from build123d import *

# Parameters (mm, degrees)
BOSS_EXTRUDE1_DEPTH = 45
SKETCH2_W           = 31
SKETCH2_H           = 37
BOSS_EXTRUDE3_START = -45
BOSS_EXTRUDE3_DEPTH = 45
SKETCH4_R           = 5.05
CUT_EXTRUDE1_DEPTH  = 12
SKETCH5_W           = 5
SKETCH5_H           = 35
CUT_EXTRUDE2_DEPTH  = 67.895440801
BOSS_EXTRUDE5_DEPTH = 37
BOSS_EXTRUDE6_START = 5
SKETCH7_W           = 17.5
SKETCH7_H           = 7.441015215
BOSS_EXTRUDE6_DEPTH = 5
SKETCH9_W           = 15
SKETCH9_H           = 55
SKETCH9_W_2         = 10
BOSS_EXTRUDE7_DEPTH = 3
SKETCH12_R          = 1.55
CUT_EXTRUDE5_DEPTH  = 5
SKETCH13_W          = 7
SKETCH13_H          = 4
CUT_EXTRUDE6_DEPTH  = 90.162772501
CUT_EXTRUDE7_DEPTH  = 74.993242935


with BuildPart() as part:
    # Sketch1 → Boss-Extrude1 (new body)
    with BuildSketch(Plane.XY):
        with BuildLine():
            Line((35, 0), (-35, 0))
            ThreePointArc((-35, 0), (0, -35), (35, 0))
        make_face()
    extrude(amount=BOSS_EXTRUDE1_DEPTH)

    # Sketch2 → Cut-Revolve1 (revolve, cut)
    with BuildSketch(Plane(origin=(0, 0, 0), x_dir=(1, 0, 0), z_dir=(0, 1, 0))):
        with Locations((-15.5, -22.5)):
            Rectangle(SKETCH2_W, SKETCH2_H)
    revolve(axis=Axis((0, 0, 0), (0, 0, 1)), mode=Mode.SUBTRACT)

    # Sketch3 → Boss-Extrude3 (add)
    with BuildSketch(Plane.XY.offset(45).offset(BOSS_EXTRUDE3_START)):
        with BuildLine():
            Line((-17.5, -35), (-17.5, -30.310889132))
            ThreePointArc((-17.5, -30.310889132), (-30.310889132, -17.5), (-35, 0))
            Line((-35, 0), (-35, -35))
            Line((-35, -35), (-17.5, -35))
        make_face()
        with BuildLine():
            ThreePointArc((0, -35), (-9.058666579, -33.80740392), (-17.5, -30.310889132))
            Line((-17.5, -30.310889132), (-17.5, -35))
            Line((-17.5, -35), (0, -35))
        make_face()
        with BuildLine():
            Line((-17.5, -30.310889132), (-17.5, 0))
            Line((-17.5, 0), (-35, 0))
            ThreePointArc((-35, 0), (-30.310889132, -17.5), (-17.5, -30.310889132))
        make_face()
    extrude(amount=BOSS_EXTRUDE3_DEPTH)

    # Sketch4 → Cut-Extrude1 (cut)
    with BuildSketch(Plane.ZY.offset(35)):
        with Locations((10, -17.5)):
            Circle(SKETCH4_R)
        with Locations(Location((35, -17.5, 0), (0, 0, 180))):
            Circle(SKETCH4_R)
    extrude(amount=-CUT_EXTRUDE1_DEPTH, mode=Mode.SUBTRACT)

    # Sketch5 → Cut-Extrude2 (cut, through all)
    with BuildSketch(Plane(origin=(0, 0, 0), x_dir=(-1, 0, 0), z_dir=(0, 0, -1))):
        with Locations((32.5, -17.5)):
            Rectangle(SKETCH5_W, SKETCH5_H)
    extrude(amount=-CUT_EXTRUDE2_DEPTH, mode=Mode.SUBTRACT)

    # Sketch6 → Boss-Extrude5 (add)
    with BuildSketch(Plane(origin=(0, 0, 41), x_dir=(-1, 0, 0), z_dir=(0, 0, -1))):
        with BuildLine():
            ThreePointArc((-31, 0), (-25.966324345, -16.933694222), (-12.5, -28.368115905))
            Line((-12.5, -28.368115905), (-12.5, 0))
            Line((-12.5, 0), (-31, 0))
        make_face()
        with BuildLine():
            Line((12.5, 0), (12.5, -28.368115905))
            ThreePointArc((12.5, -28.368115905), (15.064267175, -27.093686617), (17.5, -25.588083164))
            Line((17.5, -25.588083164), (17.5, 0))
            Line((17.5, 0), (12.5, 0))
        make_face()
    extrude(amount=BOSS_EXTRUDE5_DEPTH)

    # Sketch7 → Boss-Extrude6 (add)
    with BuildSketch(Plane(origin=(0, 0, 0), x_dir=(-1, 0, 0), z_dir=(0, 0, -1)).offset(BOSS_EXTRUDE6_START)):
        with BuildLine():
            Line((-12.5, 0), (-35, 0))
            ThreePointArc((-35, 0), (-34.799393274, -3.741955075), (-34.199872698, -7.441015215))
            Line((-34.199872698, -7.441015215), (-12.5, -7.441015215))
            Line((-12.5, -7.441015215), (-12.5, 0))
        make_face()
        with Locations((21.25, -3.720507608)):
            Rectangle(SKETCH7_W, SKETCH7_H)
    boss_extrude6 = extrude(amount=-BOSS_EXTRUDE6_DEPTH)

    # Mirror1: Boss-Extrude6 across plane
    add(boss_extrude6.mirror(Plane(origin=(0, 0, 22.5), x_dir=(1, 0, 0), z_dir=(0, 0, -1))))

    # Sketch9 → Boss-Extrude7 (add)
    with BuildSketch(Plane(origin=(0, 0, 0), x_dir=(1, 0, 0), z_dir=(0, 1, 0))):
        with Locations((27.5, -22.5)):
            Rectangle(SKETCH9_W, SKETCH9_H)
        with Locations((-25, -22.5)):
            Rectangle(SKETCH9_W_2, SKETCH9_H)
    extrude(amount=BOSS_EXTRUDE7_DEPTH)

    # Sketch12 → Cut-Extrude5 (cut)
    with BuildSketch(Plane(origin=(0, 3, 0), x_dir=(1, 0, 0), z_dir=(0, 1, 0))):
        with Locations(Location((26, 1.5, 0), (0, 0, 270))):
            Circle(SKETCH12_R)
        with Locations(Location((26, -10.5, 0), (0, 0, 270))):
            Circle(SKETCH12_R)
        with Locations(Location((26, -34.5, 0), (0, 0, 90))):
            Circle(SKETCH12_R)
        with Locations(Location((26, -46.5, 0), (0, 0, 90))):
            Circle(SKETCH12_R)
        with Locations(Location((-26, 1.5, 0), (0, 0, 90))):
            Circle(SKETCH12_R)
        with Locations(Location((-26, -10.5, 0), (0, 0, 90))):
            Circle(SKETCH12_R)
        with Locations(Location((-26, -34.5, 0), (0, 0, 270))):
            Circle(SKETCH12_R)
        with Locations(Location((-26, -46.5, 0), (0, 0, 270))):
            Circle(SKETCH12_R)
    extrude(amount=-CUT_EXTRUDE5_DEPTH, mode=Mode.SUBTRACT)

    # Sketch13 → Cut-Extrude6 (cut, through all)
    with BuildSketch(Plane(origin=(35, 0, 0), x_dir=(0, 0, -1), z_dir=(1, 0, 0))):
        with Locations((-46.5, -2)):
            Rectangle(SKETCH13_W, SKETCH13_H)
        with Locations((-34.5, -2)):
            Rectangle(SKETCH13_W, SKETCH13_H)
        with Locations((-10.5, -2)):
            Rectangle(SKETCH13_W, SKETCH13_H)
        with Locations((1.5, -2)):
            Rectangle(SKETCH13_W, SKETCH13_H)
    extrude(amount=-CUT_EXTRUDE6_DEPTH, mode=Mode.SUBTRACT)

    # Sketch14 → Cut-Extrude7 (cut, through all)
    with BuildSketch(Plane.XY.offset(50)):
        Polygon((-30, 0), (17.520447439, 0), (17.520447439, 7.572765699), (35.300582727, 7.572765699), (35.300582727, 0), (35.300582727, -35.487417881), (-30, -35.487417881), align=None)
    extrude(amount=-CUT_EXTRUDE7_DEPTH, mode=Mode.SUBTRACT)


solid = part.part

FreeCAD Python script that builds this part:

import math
import FreeCAD as App
import Part
import Sketcher


def add_polygon(sketch, points):
    """Adds a closed chain of lines whose ends are joined by coincident constraints."""
    first, n = sketch.GeometryCount, len(points)
    for a, b in zip(points, points[1:] + points[:1]):
        sketch.addGeometry(Part.LineSegment(App.Vector(*a, 0), App.Vector(*b, 0)), False)
    for i in range(n):
        sketch.addConstraint(Sketcher.Constraint("Coincident", first + i, 2, first + (i + 1) % n, 1))

doc = App.newDocument("Part")
body = doc.addObject("PartDesign::Body", "Body")

# Sketch on XY plane
sketch1 = body.newObject("Sketcher::SketchObject", "Sketch")
sketch1.AttachmentSupport = (doc.getObject("XY_Plane"), [""])
sketch1.MapMode = "FlatFace"
sketch1.addGeometry([
    Part.LineSegment(App.Vector(35, 0, 0), App.Vector(-35, 0, 0)),
    Part.ArcOfCircle(Part.Circle(App.Vector(0, 0, 0), App.Vector(0, 0, 1), 35), math.radians(180), math.radians(360)),
], False)
sketch1.addConstraint([
    Sketcher.Constraint("Coincident", 0, 1, 1, 2),
    Sketcher.Constraint("Coincident", 1, 1, 0, 2),
    Sketcher.Constraint("Horizontal", 0),
    Sketcher.Constraint("Coincident", 1, 3, -1, 1),
    Sketcher.Constraint("PointOnObject", 0, 1, -1),
    Sketcher.Constraint("Radius", 1, 35.0),
])
pad1 = body.newObject("PartDesign::Pad", "Pad")
pad1.Profile = sketch1
pad1.Length = 45

# Sketch on XZ plane
sketch2 = body.newObject("Sketcher::SketchObject", "Sketch001")
sketch2.AttachmentSupport = (doc.getObject("XZ_Plane"), [""])
sketch2.MapMode = "FlatFace"
add_polygon(sketch2, [(-31, 4), (-31, 41), (0, 41), (0, 4)])  # lines 0-3
sketch2.addConstraint([
    Sketcher.Constraint("Vertical", 0),
    Sketcher.Constraint("Horizontal", 1),
    Sketcher.Constraint("Vertical", 2),
    Sketcher.Constraint("Horizontal", 3),
    Sketcher.Constraint("PointOnObject", 1, 2, -2),
    Sketcher.Constraint("DistanceX", 1, 1, 1, 2, 31.0),
    Sketcher.Constraint("DistanceY", 0, 1, 0, 2, 37.0),
    Sketcher.Constraint("DistanceY", -1, 1, 0, 2, 41.0),
])
groove = body.newObject("PartDesign::Groove", "Groove")
groove.Profile = sketch2
groove.ReferenceAxis = (sketch2, ["V_Axis"])
groove.Angle = 360

# Sketch on XY plane
sketch3 = body.newObject("Sketcher::SketchObject", "Sketch002")
sketch3.AttachmentSupport = (doc.getObject("XY_Plane"), [""])
sketch3.MapMode = "FlatFace"
sketch3.addGeometry([
    Part.LineSegment(App.Vector(-35, 0, 0), App.Vector(-35, -35, 0)),  # 0
    Part.LineSegment(App.Vector(-35, -35, 0), App.Vector(0, -35, 0)),  # 1
    Part.ArcOfCircle(Part.Circle(App.Vector(0, 0, 0), App.Vector(0, 0, 1), 35), math.radians(-120), math.radians(-90)),  # 2
    Part.LineSegment(App.Vector(-18, -30, 0), App.Vector(-18, 0, 0)),  # 3
    Part.LineSegment(App.Vector(-18, 0, 0), App.Vector(-35, 0, 0)),  # 4
], False)
sketch3.addConstraint([
    Sketcher.Constraint("Coincident", 0, 2, 1, 1),
    Sketcher.Constraint("Tangent", 1, 2, 2, 2),
    Sketcher.Constraint("Coincident", 2, 1, 3, 1),
    Sketcher.Constraint("Coincident", 3, 2, 4, 1),
    Sketcher.Constraint("Coincident", 4, 2, 0, 1),
    Sketcher.Constraint("Vertical", 0),
    Sketcher.Constraint("Horizontal", 1),
    Sketcher.Constraint("Vertical", 3),
    Sketcher.Constraint("Horizontal", 4),
    Sketcher.Constraint("Coincident", 2, 3, -1, 1),
    Sketcher.Constraint("PointOnObject", 3, 2, -1),
    Sketcher.Constraint("Equal", 1, 0),
    Sketcher.Constraint("Radius", 2, 35.0),
    Sketcher.Constraint("DistanceX", 4, 2, 4, 1, 17.5),
])
pad2 = body.newObject("PartDesign::Pad", "Pad001")
pad2.Profile = sketch3
pad2.Length = 45

# Sketch on YZ plane
sketch4 = body.newObject("Sketcher::SketchObject", "Sketch003")
sketch4.AttachmentSupport = (doc.getObject("YZ_Plane"), [""])
sketch4.MapMode = "FlatFace"
sketch4.AttachmentOffset = App.Placement(App.Vector(0, 0, -35), App.Rotation())
sketch4.addGeometry([
    Part.Circle(App.Vector(-18, 10, 0), App.Vector(0, 0, 1), 5),
    Part.Circle(App.Vector(-18, 35, 0), App.Vector(0, 0, 1), 5),
], False)
sketch4.addConstraint([
    Sketcher.Constraint("Equal", 0, 1),
    Sketcher.Constraint("Vertical", 0, 3, 1, 3),
    Sketcher.Constraint("Diameter", 0, 10.1),
    Sketcher.Constraint("DistanceY", -1, 1, 0, 3, 10.0),
    Sketcher.Constraint("DistanceY", -1, 1, 1, 3, 35.0),
    Sketcher.Constraint("DistanceX", 0, 3, -1, 1, 17.5),
])
pocket1 = body.newObject("PartDesign::Pocket", "Pocket")
pocket1.Profile = sketch4
pocket1.Length = 12
pocket1.Reversed = True

# Sketch on XY plane
sketch5 = body.newObject("Sketcher::SketchObject", "Sketch004")
sketch5.AttachmentSupport = (doc.getObject("XY_Plane"), [""])
sketch5.MapMode = "FlatFace"
add_polygon(sketch5, [(-30, 0), (-30, -35), (-35, -35), (-35, 0)])  # lines 0-3
sketch5.addConstraint([
    Sketcher.Constraint("Vertical", 0),
    Sketcher.Constraint("Horizontal", 1),
    Sketcher.Constraint("Vertical", 2),
    Sketcher.Constraint("Horizontal", 3),
    Sketcher.Constraint("PointOnObject", 2, 2, -1),
    Sketcher.Constraint("DistanceX", 1, 2, 1, 1, 5.0),
    Sketcher.Constraint("DistanceY", 0, 2, 0, 1, 35.0),
    Sketcher.Constraint("DistanceX", 0, 2, -1, 1, 30.0),
])
pocket2 = body.newObject("PartDesign::Pocket", "Pocket001")
pocket2.Profile = sketch5
pocket2.Type = "ThroughAll"
pocket2.Reversed = True

# Sketch on XY plane
sketch6 = body.newObject("Sketcher::SketchObject", "Sketch005")
sketch6.AttachmentSupport = (doc.getObject("XY_Plane"), [""])
sketch6.MapMode = "FlatFace"
sketch6.AttachmentOffset = App.Placement(App.Vector(0, 0, 41), App.Rotation())
sketch6.addGeometry([
    Part.ArcOfCircle(Part.Circle(App.Vector(0, 0, 0), App.Vector(0, 0, 1), 31), math.radians(-66), math.radians(0)),  # 0
    Part.LineSegment(App.Vector(12, -28, 0), App.Vector(12, 0, 0)),  # 1
    Part.LineSegment(App.Vector(12, 0, 0), App.Vector(31, 0, 0)),  # 2
    Part.LineSegment(App.Vector(-12, 0, 0), App.Vector(-12, -28, 0)),  # 3
    Part.ArcOfCircle(Part.Circle(App.Vector(0, 0, 0), App.Vector(0, 0, 1), 31), math.radians(-124.37), math.radians(-113.78)),  # 4
    Part.LineSegment(App.Vector(-18, -26, 0), App.Vector(-18, 0, 0)),  # 5
    Part.LineSegment(App.Vector(-18, 0, 0), App.Vector(-12, 0, 0)),  # 6
], False)
sketch6.addConstraint([
    Sketcher.Constraint("Coincident", 0, 1, 1, 1),
    Sketcher.Constraint("Coincident", 1, 2, 2, 1),
    Sketcher.Constraint("Coincident", 2, 2, 0, 2),
    Sketcher.Constraint("Coincident", 3, 2, 4, 2),
    Sketcher.Constraint("Coincident", 4, 1, 5, 1),
    Sketcher.Constraint("Coincident", 5, 2, 6, 1),
    Sketcher.Constraint("Coincident", 6, 2, 3, 1),
    Sketcher.Constraint("Vertical", 1),
    Sketcher.Constraint("Horizontal", 2),
    Sketcher.Constraint("Vertical", 3),
    Sketcher.Constraint("Vertical", 5),
    Sketcher.Constraint("Horizontal", 6),
    Sketcher.Constraint("Coincident", 0, 3, -1, 1),
    Sketcher.Constraint("Coincident", 4, 3, -1, 1),
    Sketcher.Constraint("Equal", 0, 4),
    Sketcher.Constraint("Symmetric", 1, 2, 6, 2, -1, 1),
    Sketcher.Constraint("PointOnObject", 1, 2, -1),
    Sketcher.Constraint("Radius", 0, 31.0),
    Sketcher.Constraint("DistanceX", 6, 1, 6, 2, 5.0),
    Sketcher.Constraint("DistanceX", 2, 1, 2, 2, 18.5),
])
pad3 = body.newObject("PartDesign::Pad", "Pad002")
pad3.Profile = sketch6
pad3.Length = 37
pad3.Reversed = True

# Sketch on XY plane
sketch7 = body.newObject("Sketcher::SketchObject", "Sketch006")
sketch7.AttachmentSupport = (doc.getObject("XY_Plane"), [""])
sketch7.MapMode = "FlatFace"
sketch7.AttachmentOffset = App.Placement(App.Vector(0, 0, -5), App.Rotation())
sketch7.addGeometry(Part.LineSegment(App.Vector(12, 0, 0), App.Vector(35, 0, 0)), False)  # 0
sketch7.addGeometry(Part.ArcOfCircle(Part.Circle(App.Vector(0, 0, 0), App.Vector(0, 0, 1), 35), math.radians(-12.27), math.radians(0)), False)  # 1
sketch7.addGeometry(Part.LineSegment(App.Vector(34, -7, 0), App.Vector(12, -7, 0)), False)  # 2
sketch7.addGeometry(Part.LineSegment(App.Vector(12, -7, 0), App.Vector(12, 0, 0)), False)  # 3
add_polygon(sketch7, [(-12, 0), (-12, -7), (-30, -7), (-30, 0)])  # lines 4-7
sketch7.addConstraint([
    Sketcher.Constraint("Coincident", 0, 2, 1, 2),
    Sketcher.Constraint("Coincident", 1, 1, 2, 1),
    Sketcher.Constraint("Coincident", 2, 2, 3, 1),
    Sketcher.Constraint("Coincident", 3, 2, 0, 1),
    Sketcher.Constraint("Horizontal", 0),
    Sketcher.Constraint("Horizontal", 2),
    Sketcher.Constraint("Vertical", 3),
    Sketcher.Constraint("Vertical", 4),
    Sketcher.Constraint("Horizontal", 5),
    Sketcher.Constraint("Vertical", 6),
    Sketcher.Constraint("Horizontal", 7),
    Sketcher.Constraint("Coincident", 1, 3, -1, 1),
    Sketcher.Constraint("Symmetric", 3, 2, 7, 2, -1, 1),
    Sketcher.Constraint("PointOnObject", 0, 2, -1),
    Sketcher.Constraint("Horizontal", 2, 2, 4, 2),
    Sketcher.Constraint("Radius", 1, 35.0),
    Sketcher.Constraint("DistanceX", 0, 1, 0, 2, 22.5),
    Sketcher.Constraint("DistanceX", 5, 2, 5, 1, 17.5),
    Sketcher.Constraint("DistanceX", 2, 2, 2, 1, 21.699873),
])
pad4 = body.newObject("PartDesign::Pad", "Pad003")
pad4.Profile = sketch7
pad4.Length = 5
doc.recompute()

datumplane = body.newObject("PartDesign::Plane", "DatumPlane")
datumplane.AttachmentSupport = (doc.getObject("XY_Plane"), [""])
datumplane.MapMode = "FlatFace"
datumplane.AttachmentOffset = App.Placement(App.Vector(0, 0, 22.5), App.Rotation())
mirrored = body.newObject("PartDesign::Mirrored", "Mirrored")
mirrored.Originals = [pad4]
mirrored.MirrorPlane = (datumplane, [""])
body.Tip = mirrored

# Sketch on XZ plane
sketch8 = body.newObject("Sketcher::SketchObject", "Sketch007")
sketch8.AttachmentSupport = (doc.getObject("XZ_Plane"), [""])
sketch8.MapMode = "FlatFace"
add_polygon(sketch8, [(20, -5), (20, 50), (35, 50), (35, -5)])  # lines 0-3
add_polygon(sketch8, [(-30, -5), (-30, 50), (-20, 50), (-20, -5)])  # lines 4-7
sketch8.addConstraint([
    Sketcher.Constraint("Vertical", 0),
    Sketcher.Constraint("Horizontal", 1),
    Sketcher.Constraint("Vertical", 2),
    Sketcher.Constraint("Horizontal", 3),
    Sketcher.Constraint("Vertical", 4),
    Sketcher.Constraint("Horizontal", 5),
    Sketcher.Constraint("Vertical", 6),
    Sketcher.Constraint("Horizontal", 7),
    Sketcher.Constraint("Symmetric", 0, 2, 5, 2, -2),
    Sketcher.Constraint("Horizontal", 3, 2, 6, 2),
    Sketcher.Constraint("DistanceX", 1, 1, 1, 2, 15.0),
    Sketcher.Constraint("DistanceX", 5, 1, 5, 2, 10.0),
    Sketcher.Constraint("DistanceY", 0, 1, 0, 2, 55.0),
    Sketcher.Constraint("DistanceX", -1, 1, 0, 2, 20.0),
    Sketcher.Constraint("DistanceY", -1, 1, 0, 2, 50.0),
])
pad5 = body.newObject("PartDesign::Pad", "Pad004")
pad5.Profile = sketch8
pad5.Length = 3
pad5.Reversed = True

# Sketch on XZ plane
sketch9 = body.newObject("Sketcher::SketchObject", "Sketch008")
sketch9.AttachmentSupport = (doc.getObject("XZ_Plane"), [""])
sketch9.MapMode = "FlatFace"
sketch9.AttachmentOffset = App.Placement(App.Vector(0, 0, -3), App.Rotation())
sketch9.addGeometry([
    Part.Circle(App.Vector(26, -1.5, 0), App.Vector(0, 0, 1), 1.6),  # 0
    Part.Circle(App.Vector(26, 10.5, 0), App.Vector(0, 0, 1), 1.6),  # 1
    Part.Circle(App.Vector(26, 34.5, 0), App.Vector(0, 0, 1), 1.6),  # 2
    Part.Circle(App.Vector(26, 46.5, 0), App.Vector(0, 0, 1), 1.6),  # 3
    Part.Circle(App.Vector(-26, -1.5, 0), App.Vector(0, 0, 1), 1.6),  # 4
    Part.Circle(App.Vector(-26, 10.5, 0), App.Vector(0, 0, 1), 1.6),  # 5
    Part.Circle(App.Vector(-26, 34.5, 0), App.Vector(0, 0, 1), 1.6),  # 6
    Part.Circle(App.Vector(-26, 46.5, 0), App.Vector(0, 0, 1), 1.6),  # 7
], False)
sketch9.addConstraint([
    Sketcher.Constraint("Equal", 0, 1),
    Sketcher.Constraint("Equal", 1, 2),
    Sketcher.Constraint("Equal", 2, 3),
    Sketcher.Constraint("Equal", 3, 4),
    Sketcher.Constraint("Equal", 4, 5),
    Sketcher.Constraint("Equal", 5, 6),
    Sketcher.Constraint("Equal", 6, 7),
    Sketcher.Constraint("Symmetric", 0, 3, 4, 3, -2),
    Sketcher.Constraint("Symmetric", 1, 3, 5, 3, -2),
    Sketcher.Constraint("Symmetric", 2, 3, 6, 3, -2),
    Sketcher.Constraint("Symmetric", 3, 3, 7, 3, -2),
    Sketcher.Constraint("Vertical", 0, 3, 1, 3),
    Sketcher.Constraint("Vertical", 1, 3, 2, 3),
    Sketcher.Constraint("Vertical", 2, 3, 3, 3),
    Sketcher.Constraint("Diameter", 0, 3.1),
    Sketcher.Constraint("DistanceX", -1, 1, 0, 3, 26.0),
    Sketcher.Constraint("DistanceY", 0, 3, 1, 3, 12.0),
    Sketcher.Constraint("DistanceY", 1, 3, 2, 3, 24.0),
    Sketcher.Constraint("DistanceY", 2, 3, 3, 3, 12.0),
    Sketcher.Constraint("DistanceY", 0, 3, -1, 1, 1.5),
])
pocket3 = body.newObject("PartDesign::Pocket", "Pocket002")
pocket3.Profile = sketch9
pocket3.Length = 5
pocket3.Reversed = True

# Sketch on YZ plane
sketch10 = body.newObject("Sketcher::SketchObject", "Sketch009")
sketch10.AttachmentSupport = (doc.getObject("YZ_Plane"), [""])
sketch10.MapMode = "FlatFace"
sketch10.AttachmentOffset = App.Placement(App.Vector(0, 0, 35), App.Rotation())
add_polygon(sketch10, [(0, 50), (-4, 50), (-4, 43), (0, 43)])  # lines 0-3
add_polygon(sketch10, [(0, 38), (-4, 38), (-4, 31), (0, 31)])  # lines 4-7
add_polygon(sketch10, [(0, 14), (-4, 14), (-4, 7), (0, 7)])  # lines 8-11
add_polygon(sketch10, [(0, 2), (-4, 2), (-4, -5), (0, -5)])  # lines 12-15
sketch10.addConstraint([
    Sketcher.Constraint("Horizontal", 0),
    Sketcher.Constraint("Vertical", 1),
    Sketcher.Constraint("Horizontal", 2),
    Sketcher.Constraint("Vertical", 3),
    Sketcher.Constraint("Horizontal", 4),
    Sketcher.Constraint("Vertical", 5),
    Sketcher.Constraint("Horizontal", 6),
    Sketcher.Constraint("Vertical", 7),
    Sketcher.Constraint("Horizontal", 8),
    Sketcher.Constraint("Vertical", 9),
    Sketcher.Constraint("Horizontal", 10),
    Sketcher.Constraint("Vertical", 11),
    Sketcher.Constraint("Horizontal", 12),
    Sketcher.Constraint("Vertical", 13),
    Sketcher.Constraint("Horizontal", 14),
    Sketcher.Constraint("Vertical", 15),
    Sketcher.Constraint("PointOnObject", 2, 2, -2),
    Sketcher.Constraint("PointOnObject", 6, 2, -2),
    Sketcher.Constraint("PointOnObject", 10, 2, -2),
    Sketcher.Constraint("PointOnObject", 14, 2, -2),
    Sketcher.Constraint("Vertical", 1, 2, 4, 2),
    Sketcher.Constraint("Vertical", 5, 2, 8, 2),
    Sketcher.Constraint("Vertical", 9, 2, 12, 2),
    Sketcher.Constraint("Equal", 3, 5),
    Sketcher.Constraint("Equal", 7, 9),
    Sketcher.Constraint("Equal", 11, 13),
    Sketcher.Constraint("DistanceX", 0, 2, 0, 1, 4.0),
    Sketcher.Constraint("DistanceY", 1, 2, 1, 1, 7.0),
    Sketcher.Constraint("DistanceY", -1, 1, 0, 2, 50.0),
    Sketcher.Constraint("DistanceY", -1, 1, 4, 2, 38.0),
    Sketcher.Constraint("DistanceY", -1, 1, 8, 2, 14.0),
    Sketcher.Constraint("DistanceY", -1, 1, 12, 2, 2.0),
])
pocket4 = body.newObject("PartDesign::Pocket", "Pocket003")
pocket4.Profile = sketch10
pocket4.Type = "ThroughAll"

# Sketch on XY plane
sketch11 = body.newObject("Sketcher::SketchObject", "Sketch010")
sketch11.AttachmentSupport = (doc.getObject("XY_Plane"), [""])
sketch11.MapMode = "FlatFace"
sketch11.AttachmentOffset = App.Placement(App.Vector(0, 0, 50), App.Rotation())
add_polygon(sketch11, [(18, 0), (-30, 0), (-30, -35), (35, -35), (35, 8), (18, 8)])  # lines 0-5
sketch11.addConstraint([
    Sketcher.Constraint("Horizontal", 0),
    Sketcher.Constraint("Vertical", 1),
    Sketcher.Constraint("Horizontal", 2),
    Sketcher.Constraint("Vertical", 3),
    Sketcher.Constraint("Horizontal", 4),
    Sketcher.Constraint("Vertical", 5),
    Sketcher.Constraint("PointOnObject", 0, 2, -1),
    Sketcher.Constraint("DistanceX", 0, 2, -1, 1, 30.0),
    Sketcher.Constraint("DistanceX", 0, 2, 0, 1, 47.520447),
    Sketcher.Constraint("DistanceX", 2, 1, 2, 2, 65.300583),
    Sketcher.Constraint("DistanceY", 1, 2, 1, 1, 35.487418),
    Sketcher.Constraint("DistanceY", 3, 1, 3, 2, 43.060184),
])
pocket5 = body.newObject("PartDesign::Pocket", "Pocket004")
pocket5.Profile = sketch11
pocket5.Type = "ThroughAll"

doc.recompute()
